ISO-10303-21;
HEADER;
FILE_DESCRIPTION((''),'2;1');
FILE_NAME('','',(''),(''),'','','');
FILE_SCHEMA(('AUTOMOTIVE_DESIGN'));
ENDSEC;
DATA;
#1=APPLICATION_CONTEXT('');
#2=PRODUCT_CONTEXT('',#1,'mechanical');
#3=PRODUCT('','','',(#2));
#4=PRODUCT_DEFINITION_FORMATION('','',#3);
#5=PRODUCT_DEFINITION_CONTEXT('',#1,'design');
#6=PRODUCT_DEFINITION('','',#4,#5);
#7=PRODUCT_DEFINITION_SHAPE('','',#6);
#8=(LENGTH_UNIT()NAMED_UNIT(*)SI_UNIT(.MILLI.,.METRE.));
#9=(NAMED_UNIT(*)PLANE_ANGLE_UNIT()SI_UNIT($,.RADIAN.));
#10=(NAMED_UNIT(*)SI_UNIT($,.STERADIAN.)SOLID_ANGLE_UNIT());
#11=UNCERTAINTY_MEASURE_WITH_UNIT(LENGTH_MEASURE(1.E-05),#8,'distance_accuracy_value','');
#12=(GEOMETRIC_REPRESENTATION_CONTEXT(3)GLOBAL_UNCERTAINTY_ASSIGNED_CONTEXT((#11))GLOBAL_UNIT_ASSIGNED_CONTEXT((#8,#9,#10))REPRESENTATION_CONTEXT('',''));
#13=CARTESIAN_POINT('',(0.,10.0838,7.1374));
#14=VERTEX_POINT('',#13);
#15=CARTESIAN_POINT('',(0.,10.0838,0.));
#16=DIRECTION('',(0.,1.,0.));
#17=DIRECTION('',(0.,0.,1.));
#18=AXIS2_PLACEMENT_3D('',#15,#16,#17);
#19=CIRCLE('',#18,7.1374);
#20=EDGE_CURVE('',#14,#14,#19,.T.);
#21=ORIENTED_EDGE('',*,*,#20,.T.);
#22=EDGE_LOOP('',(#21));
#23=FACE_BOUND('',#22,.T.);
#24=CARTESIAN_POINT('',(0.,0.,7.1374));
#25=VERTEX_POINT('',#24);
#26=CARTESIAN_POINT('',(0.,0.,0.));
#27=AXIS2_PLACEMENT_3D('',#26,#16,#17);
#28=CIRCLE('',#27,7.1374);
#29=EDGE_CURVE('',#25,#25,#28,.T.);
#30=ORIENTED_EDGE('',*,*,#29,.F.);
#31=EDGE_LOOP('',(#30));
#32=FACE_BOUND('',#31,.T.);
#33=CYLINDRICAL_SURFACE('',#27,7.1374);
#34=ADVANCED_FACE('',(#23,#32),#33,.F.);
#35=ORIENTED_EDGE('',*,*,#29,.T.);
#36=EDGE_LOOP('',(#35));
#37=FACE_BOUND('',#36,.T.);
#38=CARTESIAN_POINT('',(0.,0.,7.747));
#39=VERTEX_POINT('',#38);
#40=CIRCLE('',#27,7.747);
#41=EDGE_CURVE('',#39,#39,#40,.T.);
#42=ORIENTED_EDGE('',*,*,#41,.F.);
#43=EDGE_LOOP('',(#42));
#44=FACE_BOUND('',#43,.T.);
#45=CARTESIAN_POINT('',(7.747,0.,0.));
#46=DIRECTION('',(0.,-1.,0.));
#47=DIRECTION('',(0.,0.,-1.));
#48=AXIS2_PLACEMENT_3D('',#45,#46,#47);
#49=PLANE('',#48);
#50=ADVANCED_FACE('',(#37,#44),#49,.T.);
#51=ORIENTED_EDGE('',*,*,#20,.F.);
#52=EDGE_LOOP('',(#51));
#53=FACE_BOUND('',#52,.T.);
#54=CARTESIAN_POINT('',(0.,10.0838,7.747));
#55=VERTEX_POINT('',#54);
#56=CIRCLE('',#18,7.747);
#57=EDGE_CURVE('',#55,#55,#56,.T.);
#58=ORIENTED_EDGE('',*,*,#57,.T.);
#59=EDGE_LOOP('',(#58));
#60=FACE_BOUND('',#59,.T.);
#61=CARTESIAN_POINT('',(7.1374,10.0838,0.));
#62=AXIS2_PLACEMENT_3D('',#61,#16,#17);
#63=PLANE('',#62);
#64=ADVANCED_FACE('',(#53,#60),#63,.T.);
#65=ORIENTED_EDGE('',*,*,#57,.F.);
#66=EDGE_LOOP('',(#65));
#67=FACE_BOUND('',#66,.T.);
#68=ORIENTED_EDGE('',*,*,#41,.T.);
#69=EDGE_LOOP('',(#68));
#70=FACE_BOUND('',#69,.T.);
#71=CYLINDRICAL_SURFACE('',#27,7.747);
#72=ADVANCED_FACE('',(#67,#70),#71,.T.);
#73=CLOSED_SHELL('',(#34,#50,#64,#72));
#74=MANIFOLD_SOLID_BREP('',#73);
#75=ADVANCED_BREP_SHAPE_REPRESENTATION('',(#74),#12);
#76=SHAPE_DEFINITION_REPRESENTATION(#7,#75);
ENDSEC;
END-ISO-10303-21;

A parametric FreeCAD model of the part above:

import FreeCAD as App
import Part
import Sketcher
Q = App.Units.Quantity


def add_polygon(sketch, points):
    """Adds a closed chain of lines whose ends are joined by coincident constraints."""
    first, n = sketch.GeometryCount, len(points)
    for a, b in zip(points, points[1:] + points[:1]):
        sketch.addGeometry(Part.LineSegment(App.Vector(*a, 0), App.Vector(*b, 0)), False)
    for i in range(n):
        sketch.addConstraint(Sketcher.Constraint("Coincident", first + i, 2, first + (i + 1) % n, 1))

doc = App.newDocument("Part")
body = doc.addObject("PartDesign::Body", "Body")

# Sketch on XY plane
sketch1 = body.newObject("Sketcher::SketchObject", "Sketch")
sketch1.AttachmentSupport = (doc.getObject("XY_Plane"), [""])
sketch1.MapMode = "FlatFace"
add_polygon(sketch1, [(7.7, 10.1), (7.7, 0), (7.1, 0), (7.1, 10.1)])  # lines 0-3
sketch1.addConstraint(Sketcher.Constraint("Vertical", 0))
sketch1.addConstraint(Sketcher.Constraint("Horizontal", 1))
sketch1.addConstraint(Sketcher.Constraint("Vertical", 2))
sketch1.addConstraint(Sketcher.Constraint("Horizontal", 3))
sketch1.addConstraint(Sketcher.Constraint("PointOnObject", 0, 2, -1))
sketch1.addConstraint(Sketcher.Constraint("DistanceX", 1, 2, 1, 1, Q("0.024 in")))
sketch1.addConstraint(Sketcher.Constraint("DistanceY", 0, 2, 0, 1, Q("0.397 in")))
sketch1.addConstraint(Sketcher.Constraint("DistanceX", -1, 1, 0, 2, Q("0.305 in")))
revolution = body.newObject("PartDesign::Revolution", "Revolution")
revolution.Profile = sketch1
revolution.ReferenceAxis = (sketch1, ["V_Axis"])
revolution.Angle = 360

doc.recompute()
